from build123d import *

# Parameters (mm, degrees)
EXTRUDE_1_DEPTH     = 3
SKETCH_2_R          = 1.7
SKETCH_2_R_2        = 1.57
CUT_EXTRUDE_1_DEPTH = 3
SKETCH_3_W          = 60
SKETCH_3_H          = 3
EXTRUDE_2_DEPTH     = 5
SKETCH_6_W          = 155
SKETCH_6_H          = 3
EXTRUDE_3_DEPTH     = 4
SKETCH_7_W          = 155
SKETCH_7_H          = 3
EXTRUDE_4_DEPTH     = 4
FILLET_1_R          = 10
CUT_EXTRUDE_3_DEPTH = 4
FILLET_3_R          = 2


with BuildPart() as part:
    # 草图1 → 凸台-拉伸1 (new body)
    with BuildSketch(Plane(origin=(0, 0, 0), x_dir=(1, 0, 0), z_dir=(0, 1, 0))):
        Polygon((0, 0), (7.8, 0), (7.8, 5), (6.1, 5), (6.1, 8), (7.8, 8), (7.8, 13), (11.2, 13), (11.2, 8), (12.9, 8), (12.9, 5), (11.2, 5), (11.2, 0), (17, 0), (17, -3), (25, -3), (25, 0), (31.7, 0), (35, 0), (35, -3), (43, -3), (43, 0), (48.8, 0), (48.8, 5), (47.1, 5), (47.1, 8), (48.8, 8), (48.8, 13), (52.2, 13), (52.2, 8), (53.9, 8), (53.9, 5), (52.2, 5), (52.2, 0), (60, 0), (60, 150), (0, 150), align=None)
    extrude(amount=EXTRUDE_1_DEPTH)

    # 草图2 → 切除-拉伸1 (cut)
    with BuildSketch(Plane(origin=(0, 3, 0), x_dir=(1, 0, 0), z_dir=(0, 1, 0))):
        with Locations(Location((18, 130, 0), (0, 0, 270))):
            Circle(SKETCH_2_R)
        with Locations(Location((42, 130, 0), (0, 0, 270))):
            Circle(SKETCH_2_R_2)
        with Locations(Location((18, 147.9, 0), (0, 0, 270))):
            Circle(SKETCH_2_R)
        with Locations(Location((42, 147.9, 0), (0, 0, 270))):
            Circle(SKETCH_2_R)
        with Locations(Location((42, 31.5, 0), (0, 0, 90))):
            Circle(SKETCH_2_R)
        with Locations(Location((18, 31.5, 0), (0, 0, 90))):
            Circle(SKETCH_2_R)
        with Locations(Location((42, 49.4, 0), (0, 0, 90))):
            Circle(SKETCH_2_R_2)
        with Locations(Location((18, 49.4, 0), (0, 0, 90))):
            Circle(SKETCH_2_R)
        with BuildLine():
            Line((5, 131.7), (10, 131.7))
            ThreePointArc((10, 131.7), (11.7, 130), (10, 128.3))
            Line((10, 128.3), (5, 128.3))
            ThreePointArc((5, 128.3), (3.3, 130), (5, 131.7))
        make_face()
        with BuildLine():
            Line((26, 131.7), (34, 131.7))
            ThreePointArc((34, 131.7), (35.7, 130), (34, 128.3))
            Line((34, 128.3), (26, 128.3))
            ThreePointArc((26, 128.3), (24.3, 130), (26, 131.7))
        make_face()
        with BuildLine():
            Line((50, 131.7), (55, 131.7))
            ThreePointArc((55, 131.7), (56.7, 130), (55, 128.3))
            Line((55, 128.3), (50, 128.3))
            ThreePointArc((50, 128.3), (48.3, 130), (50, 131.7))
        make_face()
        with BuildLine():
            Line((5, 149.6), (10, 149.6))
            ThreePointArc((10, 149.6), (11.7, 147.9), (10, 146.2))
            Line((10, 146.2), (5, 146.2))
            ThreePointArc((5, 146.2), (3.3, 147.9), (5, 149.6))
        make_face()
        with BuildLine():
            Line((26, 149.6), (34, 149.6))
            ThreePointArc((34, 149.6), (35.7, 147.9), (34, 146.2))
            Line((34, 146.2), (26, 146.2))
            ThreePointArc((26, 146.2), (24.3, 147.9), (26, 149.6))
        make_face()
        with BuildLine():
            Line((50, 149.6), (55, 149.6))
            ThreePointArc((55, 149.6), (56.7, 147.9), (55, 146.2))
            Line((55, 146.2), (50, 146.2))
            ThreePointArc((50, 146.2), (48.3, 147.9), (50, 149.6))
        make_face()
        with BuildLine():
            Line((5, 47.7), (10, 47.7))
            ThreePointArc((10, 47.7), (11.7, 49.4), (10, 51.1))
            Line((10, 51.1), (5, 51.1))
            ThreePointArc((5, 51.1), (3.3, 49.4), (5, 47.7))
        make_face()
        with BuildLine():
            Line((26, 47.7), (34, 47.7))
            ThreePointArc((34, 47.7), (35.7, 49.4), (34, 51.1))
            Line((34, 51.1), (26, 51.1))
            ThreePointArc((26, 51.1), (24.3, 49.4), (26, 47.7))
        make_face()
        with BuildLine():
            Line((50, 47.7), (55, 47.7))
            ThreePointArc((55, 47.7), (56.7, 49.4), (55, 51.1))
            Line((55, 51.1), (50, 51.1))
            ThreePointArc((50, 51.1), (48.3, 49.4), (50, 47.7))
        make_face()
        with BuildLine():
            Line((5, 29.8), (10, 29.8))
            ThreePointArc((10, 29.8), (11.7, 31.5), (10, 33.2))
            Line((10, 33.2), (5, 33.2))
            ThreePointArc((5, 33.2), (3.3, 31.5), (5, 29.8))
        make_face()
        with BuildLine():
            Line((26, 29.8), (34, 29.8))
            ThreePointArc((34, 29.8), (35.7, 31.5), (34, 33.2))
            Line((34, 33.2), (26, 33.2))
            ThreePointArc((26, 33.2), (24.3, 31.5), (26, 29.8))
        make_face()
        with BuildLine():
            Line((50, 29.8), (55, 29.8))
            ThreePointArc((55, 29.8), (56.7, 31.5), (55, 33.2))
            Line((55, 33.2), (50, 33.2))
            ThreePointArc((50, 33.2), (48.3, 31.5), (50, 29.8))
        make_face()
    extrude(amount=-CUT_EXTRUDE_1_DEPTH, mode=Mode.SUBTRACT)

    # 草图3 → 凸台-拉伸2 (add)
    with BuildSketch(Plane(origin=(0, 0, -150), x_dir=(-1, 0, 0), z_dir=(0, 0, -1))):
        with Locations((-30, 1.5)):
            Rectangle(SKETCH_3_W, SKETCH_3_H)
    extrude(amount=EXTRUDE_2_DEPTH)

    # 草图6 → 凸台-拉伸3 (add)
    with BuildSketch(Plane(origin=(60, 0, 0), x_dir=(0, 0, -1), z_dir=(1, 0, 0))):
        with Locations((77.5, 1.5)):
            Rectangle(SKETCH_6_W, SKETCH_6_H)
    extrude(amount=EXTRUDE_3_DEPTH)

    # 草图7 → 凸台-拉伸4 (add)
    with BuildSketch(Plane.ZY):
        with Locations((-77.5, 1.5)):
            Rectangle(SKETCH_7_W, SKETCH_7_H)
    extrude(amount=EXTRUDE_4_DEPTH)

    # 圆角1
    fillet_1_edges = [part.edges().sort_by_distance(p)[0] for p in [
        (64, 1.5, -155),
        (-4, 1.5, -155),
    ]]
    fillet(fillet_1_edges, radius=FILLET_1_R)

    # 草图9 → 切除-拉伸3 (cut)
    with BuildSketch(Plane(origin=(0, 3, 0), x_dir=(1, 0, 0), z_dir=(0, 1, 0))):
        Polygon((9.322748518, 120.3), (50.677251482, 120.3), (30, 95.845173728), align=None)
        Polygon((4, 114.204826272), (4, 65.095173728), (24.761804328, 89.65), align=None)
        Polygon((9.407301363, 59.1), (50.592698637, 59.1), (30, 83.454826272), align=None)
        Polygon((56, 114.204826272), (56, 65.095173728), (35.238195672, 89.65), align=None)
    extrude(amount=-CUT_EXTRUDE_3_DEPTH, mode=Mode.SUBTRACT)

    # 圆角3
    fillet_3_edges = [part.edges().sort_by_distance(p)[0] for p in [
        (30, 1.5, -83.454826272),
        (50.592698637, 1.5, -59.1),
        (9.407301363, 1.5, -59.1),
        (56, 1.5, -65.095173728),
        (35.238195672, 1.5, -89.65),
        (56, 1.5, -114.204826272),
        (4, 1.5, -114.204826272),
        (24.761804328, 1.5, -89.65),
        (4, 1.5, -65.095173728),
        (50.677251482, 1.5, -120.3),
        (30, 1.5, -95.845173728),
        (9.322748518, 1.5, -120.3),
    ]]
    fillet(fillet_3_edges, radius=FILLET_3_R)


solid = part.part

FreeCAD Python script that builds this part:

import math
import FreeCAD as App
import Part
import Sketcher

V = App.Vector
Q = App.Units.Quantity


def edges_at(feature, points):
    """Names of the edges that pass closest to the given points."""
    edges = feature.Shape.Edges
    near = lambda p: min(range(len(edges)), key=lambda i: edges[i].distToShape(Part.Vertex(*p))[0])
    return sorted({f"Edge{near(p) + 1}" for p in points})

doc = App.newDocument("Part")
params = doc.addObject("Spreadsheet::Sheet", "Params")
for row, (alias, value) in enumerate([
    ("sketch1_width", "8 mm"),
    ("sketch1_width2", "10 mm"),
    ("sketch1_width3", "60 mm"),
    ("sketch1_height", "5 mm"),
    ("sketch1_height2", "3 mm"),
    ("pad1_length", "3 mm"),
    ("sketch2_diameter", "3.4 mm"),
    ("sketch2_diameter2", "3.14 mm"),
    ("sketch2_width", "5 mm"),
    ("sketch2_width2", "8 mm"),
    ("pocket1_length", "3 mm"),
    ("sketch3_width", "60 mm"),
    ("sketch3_height", "3 mm"),
    ("pad2_length", "5 mm"),
    ("sketch4_width", "3 mm"),
    ("sketch4_height", "155 mm"),
    ("pad3_length", "4 mm"),
    ("sketch5_width", "3 mm"),
    ("sketch5_height", "155 mm"),
    ("pad4_length", "4 mm"),
    ("fillet_radius", "10 mm"),
    ("pocket2_length", "4 mm"),
    ("fillet2_radius", "2 mm"),
], start=1):
    params.set(f"A{row}", alias)
    params.set(f"B{row}", "=" + value)
    params.setAlias(f"B{row}", alias)

body = doc.addObject("PartDesign::Body", "Body")

# Sketch on XZ plane
sketch1 = body.newObject("Sketcher::SketchObject", "Sketch")
sketch1.AttachmentSupport = (doc.getObject("XZ_Plane"), [""])
sketch1.MapMode = "FlatFace"
sketch1.addGeometry([
    Part.LineSegment(V(0, 0, 0), V(7.8, 0, 0)),  # 0
    Part.LineSegment(V(7.8, 0, 0), V(7.8, -5, 0)),  # 1
    Part.LineSegment(V(7.8, -5, 0), V(6.1, -5, 0)),  # 2
    Part.LineSegment(V(6.1, -5, 0), V(6.1, -8, 0)),  # 3
    Part.LineSegment(V(6.1, -8, 0), V(7.8, -8, 0)),  # 4
    Part.LineSegment(V(7.8, -8, 0), V(7.8, -13, 0)),  # 5
    Part.LineSegment(V(7.8, -13, 0), V(11.2, -13, 0)),  # 6
    Part.LineSegment(V(11.2, -13, 0), V(11.2, -8, 0)),  # 7
    Part.LineSegment(V(11.2, -8, 0), V(12.9, -8, 0)),  # 8
    Part.LineSegment(V(12.9, -8, 0), V(12.9, -5, 0)),  # 9
    Part.LineSegment(V(12.9, -5, 0), V(11.2, -5, 0)),  # 10
    Part.LineSegment(V(11.2, -5, 0), V(11.2, 0, 0)),  # 11
    Part.LineSegment(V(11.2, 0, 0), V(17, 0, 0)),  # 12
    Part.LineSegment(V(17, 0, 0), V(17, 3, 0)),  # 13
    Part.LineSegment(V(17, 3, 0), V(25, 3, 0)),  # 14
    Part.LineSegment(V(25, 3, 0), V(25, 0, 0)),  # 15
    Part.LineSegment(V(25, 0, 0), V(35, 0, 0)),  # 16
    Part.LineSegment(V(35, 0, 0), V(35, 3, 0)),  # 17
    Part.LineSegment(V(35, 3, 0), V(43, 3, 0)),  # 18
    Part.LineSegment(V(43, 3, 0), V(43, 0, 0)),  # 19
    Part.LineSegment(V(43, 0, 0), V(48.8, 0, 0)),  # 20
    Part.LineSegment(V(48.8, 0, 0), V(48.8, -5, 0)),  # 21
    Part.LineSegment(V(48.8, -5, 0), V(47.1, -5, 0)),  # 22
    Part.LineSegment(V(47.1, -5, 0), V(47.1, -8, 0)),  # 23
    Part.LineSegment(V(47.1, -8, 0), V(48.8, -8, 0)),  # 24
    Part.LineSegment(V(48.8, -8, 0), V(48.8, -13, 0)),  # 25
    Part.LineSegment(V(48.8, -13, 0), V(52.2, -13, 0)),  # 26
    Part.LineSegment(V(52.2, -13, 0), V(52.2, -8, 0)),  # 27
    Part.LineSegment(V(52.2, -8, 0), V(53.9, -8, 0)),  # 28
    Part.LineSegment(V(53.9, -8, 0), V(53.9, -5, 0)),  # 29
    Part.LineSegment(V(53.9, -5, 0), V(52.2, -5, 0)),  # 30
    Part.LineSegment(V(52.2, -5, 0), V(52.2, 0, 0)),  # 31
    Part.LineSegment(V(52.2, 0, 0), V(60, 0, 0)),  # 32
    Part.LineSegment(V(60, 0, 0), V(60, -150, 0)),  # 33
    Part.LineSegment(V(60, -150, 0), V(0, -150, 0)),  # 34
    Part.LineSegment(V(0, -150, 0), V(0, 0, 0)),  # 35
], False)
sketch1.addConstraint([
    Sketcher.Constraint("Coincident", 0, 2, 1, 1),
    Sketcher.Constraint("Coincident", 1, 2, 2, 1),
    Sketcher.Constraint("Coincident", 2, 2, 3, 1),
    Sketcher.Constraint("Coincident", 3, 2, 4, 1),
    Sketcher.Constraint("Coincident", 4, 2, 5, 1),
    Sketcher.Constraint("Coincident", 5, 2, 6, 1),
    Sketcher.Constraint("Coincident", 6, 2, 7, 1),
    Sketcher.Constraint("Coincident", 7, 2, 8, 1),
    Sketcher.Constraint("Coincident", 8, 2, 9, 1),
    Sketcher.Constraint("Coincident", 9, 2, 10, 1),
    Sketcher.Constraint("Coincident", 10, 2, 11, 1),
    Sketcher.Constraint("Coincident", 11, 2, 12, 1),
    Sketcher.Constraint("Coincident", 12, 2, 13, 1),
    Sketcher.Constraint("Coincident", 13, 2, 14, 1),
    Sketcher.Constraint("Coincident", 14, 2, 15, 1),
    Sketcher.Constraint("Coincident", 15, 2, 16, 1),
    Sketcher.Constraint("Coincident", 16, 2, 17, 1),
    Sketcher.Constraint("Coincident", 17, 2, 18, 1),
    Sketcher.Constraint("Coincident", 18, 2, 19, 1),
    Sketcher.Constraint("Coincident", 19, 2, 20, 1),
    Sketcher.Constraint("Coincident", 20, 2, 21, 1),
    Sketcher.Constraint("Coincident", 21, 2, 22, 1),
    Sketcher.Constraint("Coincident", 22, 2, 23, 1),
    Sketcher.Constraint("Coincident", 23, 2, 24, 1),
    Sketcher.Constraint("Coincident", 24, 2, 25, 1),
    Sketcher.Constraint("Coincident", 25, 2, 26, 1),
    Sketcher.Constraint("Coincident", 26, 2, 27, 1),
    Sketcher.Constraint("Coincident", 27, 2, 28, 1),
    Sketcher.Constraint("Coincident", 28, 2, 29, 1),
    Sketcher.Constraint("Coincident", 29, 2, 30, 1),
    Sketcher.Constraint("Coincident", 30, 2, 31, 1),
    Sketcher.Constraint("Coincident", 31, 2, 32, 1),
    Sketcher.Constraint("Coincident", 32, 2, 33, 1),
    Sketcher.Constraint("Coincident", 33, 2, 34, 1),
    Sketcher.Constraint("Coincident", 34, 2, 35, 1),
    Sketcher.Constraint("Coincident", 35, 2, 0, 1),
    Sketcher.Constraint("Horizontal", 0),
    Sketcher.Constraint("Vertical", 1),
    Sketcher.Constraint("Horizontal", 2),
    Sketcher.Constraint("Vertical", 3),
    Sketcher.Constraint("Horizontal", 4),
    Sketcher.Constraint("Vertical", 5),
    Sketcher.Constraint("Horizontal", 6),
    Sketcher.Constraint("Vertical", 7),
    Sketcher.Constraint("Horizontal", 8),
    Sketcher.Constraint("Vertical", 9),
    Sketcher.Constraint("Horizontal", 10),
    Sketcher.Constraint("Vertical", 11),
    Sketcher.Constraint("Horizontal", 12),
    Sketcher.Constraint("Vertical", 13),
    Sketcher.Constraint("Horizontal", 14),
    Sketcher.Constraint("Vertical", 15),
    Sketcher.Constraint("Horizontal", 16),
    Sketcher.Constraint("Vertical", 17),
    Sketcher.Constraint("Horizontal", 18),
    Sketcher.Constraint("Vertical", 19),
    Sketcher.Constraint("Horizontal", 20),
    Sketcher.Constraint("Vertical", 21),
    Sketcher.Constraint("Horizontal", 22),
    Sketcher.Constraint("Vertical", 23),
    Sketcher.Constraint("Horizontal", 24),
    Sketcher.Constraint("Vertical", 25),
    Sketcher.Constraint("Horizontal", 26),
    Sketcher.Constraint("Vertical", 27),
    Sketcher.Constraint("Horizontal", 28),
    Sketcher.Constraint("Vertical", 29),
    Sketcher.Constraint("Horizontal", 30),
    Sketcher.Constraint("Vertical", 31),
    Sketcher.Constraint("Horizontal", 32),
    Sketcher.Constraint("Vertical", 33),
    Sketcher.Constraint("Horizontal", 34),
    Sketcher.Constraint("Vertical", 35),
    Sketcher.Constraint("Coincident", 35, 2, -1, 1),
    Sketcher.Constraint("PointOnObject", 11, 2, -1),
    Sketcher.Constraint("PointOnObject", 15, 2, -1),
    Sketcher.Constraint("PointOnObject", 19, 2, -1),
    Sketcher.Constraint("PointOnObject", 31, 2, -1),
    Sketcher.Constraint("Horizontal", 4, 2, 7, 2),
    Sketcher.Constraint("Horizontal", 2, 2, 9, 2),
    Sketcher.Constraint("Horizontal", 14, 2, 17, 2),
    Sketcher.Constraint("Horizontal", 10, 2, 21, 2),
    Sketcher.Constraint("Horizontal", 8, 2, 23, 2),
    Sketcher.Constraint("Horizontal", 6, 2, 25, 2),
    Sketcher.Constraint("Horizontal", 24, 2, 27, 2),
    Sketcher.Constraint("Horizontal", 22, 2, 29, 2),
    Sketcher.Constraint("Vertical", 1, 2, 4, 2),
    Sketcher.Constraint("Vertical", 7, 2, 10, 2),
    Sketcher.Constraint("Vertical", 21, 2, 24, 2),
    Sketcher.Constraint("Vertical", 27, 2, 30, 2),
    Sketcher.Constraint("Equal", 4, 8),
    Sketcher.Constraint("Equal", 14, 18),
    Sketcher.Constraint("Equal", 12, 20),
    Sketcher.Constraint("Equal", 10, 22),
    Sketcher.Constraint("Equal", 6, 26),
    Sketcher.Constraint("Equal", 24, 28),
    Sketcher.Constraint("Equal", 0, 32),
    Sketcher.Constraint("Equal", 1, 5),
    Sketcher.Constraint("Equal", 9, 13),
    Sketcher.Constraint("DistanceX", 14, 1, 14, 2, Q("8 mm")),
    Sketcher.Constraint("DistanceX", 16, 1, 16, 2, Q("10 mm")),
    Sketcher.Constraint("DistanceX", 34, 2, 34, 1, Q("60 mm")),
    Sketcher.Constraint("DistanceY", 1, 2, 1, 1, Q("5 mm")),
    Sketcher.Constraint("DistanceY", 3, 2, 3, 1, Q("3 mm")),
    Sketcher.Constraint("DistanceY", 33, 2, 33, 1, Q("150 mm")),
    Sketcher.Constraint("DistanceX", 0, 1, 0, 2, Q("7.8 mm")),
    Sketcher.Constraint("DistanceX", 2, 2, 2, 1, Q("1.7 mm")),
    Sketcher.Constraint("DistanceX", 6, 1, 6, 2, Q("3.4 mm")),
])
sketch1.setExpression("Constraints[98]", "Params.sketch1_width")
sketch1.setExpression("Constraints[99]", "Params.sketch1_width2")
sketch1.setExpression("Constraints[100]", "Params.sketch1_width3")
sketch1.setExpression("Constraints[101]", "Params.sketch1_height")
sketch1.setExpression("Constraints[102]", "Params.sketch1_height2")
pad1 = body.newObject("PartDesign::Pad", "Pad")
pad1.Profile = sketch1
pad1.setExpression("Length", "Params.pad1_length")
pad1.Reversed = True

# Sketch on XZ plane
sketch2 = body.newObject("Sketcher::SketchObject", "Sketch001")
sketch2.AttachmentSupport = (doc.getObject("XZ_Plane"), [""])
sketch2.MapMode = "FlatFace"
sketch2.AttachmentOffset = App.Placement(V(0, 0, -3), App.Rotation())
sketch2.addGeometry([
    Part.Circle(V(18, -130, 0), V(0, 0, 1), 1.7),  # 0
    Part.Circle(V(42, -130, 0), V(0, 0, 1), 1.6),  # 1
    Part.Circle(V(18, -147.9, 0), V(0, 0, 1), 1.7),  # 2
    Part.Circle(V(42, -147.9, 0), V(0, 0, 1), 1.7),  # 3
    Part.Circle(V(42, -31.5, 0), V(0, 0, 1), 1.7),  # 4
    Part.Circle(V(18, -31.5, 0), V(0, 0, 1), 1.7),  # 5
    Part.Circle(V(42, -49.4, 0), V(0, 0, 1), 1.6),  # 6
    Part.Circle(V(18, -49.4, 0), V(0, 0, 1), 1.7),  # 7
    Part.LineSegment(V(10, -131.7, 0), V(5, -131.7, 0)),  # 8
    Part.ArcOfCircle(Part.Circle(V(5, -130, 0), V(0, 0, 1), 1.7), math.radians(90), math.radians(270)),  # 9
    Part.LineSegment(V(5, -128.3, 0), V(10, -128.3, 0)),  # 10
    Part.ArcOfCircle(Part.Circle(V(10, -130, 0), V(0, 0, 1), 1.7), math.radians(-90), math.radians(90)),  # 11
    Part.LineSegment(V(34, -131.7, 0), V(26, -131.7, 0)),  # 12
    Part.ArcOfCircle(Part.Circle(V(26, -130, 0), V(0, 0, 1), 1.7), math.radians(90), math.radians(270)),  # 13
    Part.LineSegment(V(26, -128.3, 0), V(34, -128.3, 0)),  # 14
    Part.ArcOfCircle(Part.Circle(V(34, -130, 0), V(0, 0, 1), 1.7), math.radians(-90), math.radians(90)),  # 15
    Part.LineSegment(V(55, -131.7, 0), V(50, -131.7, 0)),  # 16
    Part.ArcOfCircle(Part.Circle(V(50, -130, 0), V(0, 0, 1), 1.7), math.radians(90), math.radians(270)),  # 17
    Part.LineSegment(V(50, -128.3, 0), V(55, -128.3, 0)),  # 18
    Part.ArcOfCircle(Part.Circle(V(55, -130, 0), V(0, 0, 1), 1.7), math.radians(-90), math.radians(90)),  # 19
    Part.LineSegment(V(10, -149.6, 0), V(5, -149.6, 0)),  # 20
    Part.ArcOfCircle(Part.Circle(V(5, -147.9, 0), V(0, 0, 1), 1.7), math.radians(90), math.radians(270)),  # 21
    Part.LineSegment(V(5, -146.2, 0), V(10, -146.2, 0)),  # 22
    Part.ArcOfCircle(Part.Circle(V(10, -147.9, 0), V(0, 0, 1), 1.7), math.radians(-90), math.radians(90)),  # 23
    Part.LineSegment(V(34, -149.6, 0), V(26, -149.6, 0)),  # 24
    Part.ArcOfCircle(Part.Circle(V(26, -147.9, 0), V(0, 0, 1), 1.7), math.radians(90), math.radians(270)),  # 25
    Part.LineSegment(V(26, -146.2, 0), V(34, -146.2, 0)),  # 26
    Part.ArcOfCircle(Part.Circle(V(34, -147.9, 0), V(0, 0, 1), 1.7), math.radians(-90), math.radians(90)),  # 27
    Part.LineSegment(V(55, -149.6, 0), V(50, -149.6, 0)),  # 28
    Part.ArcOfCircle(Part.Circle(V(50, -147.9, 0), V(0, 0, 1), 1.7), math.radians(90), math.radians(270)),  # 29
    Part.LineSegment(V(50, -146.2, 0), V(55, -146.2, 0)),  # 30
    Part.ArcOfCircle(Part.Circle(V(55, -147.9, 0), V(0, 0, 1), 1.7), math.radians(-90), math.radians(90)),  # 31
    Part.LineSegment(V(5, -47.7, 0), V(10, -47.7, 0)),  # 32
    Part.ArcOfCircle(Part.Circle(V(10, -49.4, 0), V(0, 0, 1), 1.7), math.radians(-90), math.radians(90)),  # 33
    Part.LineSegment(V(10, -51.1, 0), V(5, -51.1, 0)),  # 34
    Part.ArcOfCircle(Part.Circle(V(5, -49.4, 0), V(0, 0, 1), 1.7), math.radians(90), math.radians(270)),  # 35
    Part.LineSegment(V(26, -47.7, 0), V(34, -47.7, 0)),  # 36
    Part.ArcOfCircle(Part.Circle(V(34, -49.4, 0), V(0, 0, 1), 1.7), math.radians(-90), math.radians(90)),  # 37
    Part.LineSegment(V(34, -51.1, 0), V(26, -51.1, 0)),  # 38
    Part.ArcOfCircle(Part.Circle(V(26, -49.4, 0), V(0, 0, 1), 1.7), math.radians(90), math.radians(270)),  # 39
    Part.LineSegment(V(50, -47.7, 0), V(55, -47.7, 0)),  # 40
    Part.ArcOfCircle(Part.Circle(V(55, -49.4, 0), V(0, 0, 1), 1.7), math.radians(-90), math.radians(90)),  # 41
    Part.LineSegment(V(55, -51.1, 0), V(50, -51.1, 0)),  # 42
    Part.ArcOfCircle(Part.Circle(V(50, -49.4, 0), V(0, 0, 1), 1.7), math.radians(90), math.radians(270)),  # 43
    Part.LineSegment(V(5, -29.8, 0), V(10, -29.8, 0)),  # 44
    Part.ArcOfCircle(Part.Circle(V(10, -31.5, 0), V(0, 0, 1), 1.7), math.radians(-90), math.radians(90)),  # 45
    Part.LineSegment(V(10, -33.2, 0), V(5, -33.2, 0)),  # 46
    Part.ArcOfCircle(Part.Circle(V(5, -31.5, 0), V(0, 0, 1), 1.7), math.radians(90), math.radians(270)),  # 47
    Part.LineSegment(V(26, -29.8, 0), V(34, -29.8, 0)),  # 48
    Part.ArcOfCircle(Part.Circle(V(34, -31.5, 0), V(0, 0, 1), 1.7), math.radians(-90), math.radians(90)),  # 49
    Part.LineSegment(V(34, -33.2, 0), V(26, -33.2, 0)),  # 50
    Part.ArcOfCircle(Part.Circle(V(26, -31.5, 0), V(0, 0, 1), 1.7), math.radians(90), math.radians(270)),  # 51
    Part.LineSegment(V(50, -29.8, 0), V(55, -29.8, 0)),  # 52
    Part.ArcOfCircle(Part.Circle(V(55, -31.5, 0), V(0, 0, 1), 1.7), math.radians(-90), math.radians(90)),  # 53
    Part.LineSegment(V(55, -33.2, 0), V(50, -33.2, 0)),  # 54
    Part.ArcOfCircle(Part.Circle(V(50, -31.5, 0), V(0, 0, 1), 1.7), math.radians(90), math.radians(270)),  # 55
], False)
sketch2.addConstraint([
    Sketcher.Constraint("Tangent", 8, 2, 9, 2),
    Sketcher.Constraint("Tangent", 9, 1, 10, 1),
    Sketcher.Constraint("Tangent", 10, 2, 11, 2),
    Sketcher.Constraint("Tangent", 11, 1, 8, 1),
    Sketcher.Constraint("Tangent", 12, 2, 13, 2),
    Sketcher.Constraint("Tangent", 13, 1, 14, 1),
    Sketcher.Constraint("Tangent", 14, 2, 15, 2),
    Sketcher.Constraint("Tangent", 15, 1, 12, 1),
    Sketcher.Constraint("Tangent", 16, 2, 17, 2),
    Sketcher.Constraint("Tangent", 17, 1, 18, 1),
    Sketcher.Constraint("Tangent", 18, 2, 19, 2),
    Sketcher.Constraint("Tangent", 19, 1, 16, 1),
    Sketcher.Constraint("Tangent", 20, 2, 21, 2),
    Sketcher.Constraint("Tangent", 21, 1, 22, 1),
    Sketcher.Constraint("Tangent", 22, 2, 23, 2),
    Sketcher.Constraint("Tangent", 23, 1, 20, 1),
    Sketcher.Constraint("Tangent", 24, 2, 25, 2),
    Sketcher.Constraint("Tangent", 25, 1, 26, 1),
    Sketcher.Constraint("Tangent", 26, 2, 27, 2),
    Sketcher.Constraint("Tangent", 27, 1, 24, 1),
    Sketcher.Constraint("Tangent", 28, 2, 29, 2),
    Sketcher.Constraint("Tangent", 29, 1, 30, 1),
    Sketcher.Constraint("Tangent", 30, 2, 31, 2),
    Sketcher.Constraint("Tangent", 31, 1, 28, 1),
    Sketcher.Constraint("Tangent", 32, 2, 33, 2),
    Sketcher.Constraint("Tangent", 33, 1, 34, 1),
    Sketcher.Constraint("Tangent", 34, 2, 35, 2),
    Sketcher.Constraint("Tangent", 35, 1, 32, 1),
    Sketcher.Constraint("Tangent", 36, 2, 37, 2),
    Sketcher.Constraint("Tangent", 37, 1, 38, 1),
    Sketcher.Constraint("Tangent", 38, 2, 39, 2),
    Sketcher.Constraint("Tangent", 39, 1, 36, 1),
    Sketcher.Constraint("Tangent", 40, 2, 41, 2),
    Sketcher.Constraint("Tangent", 41, 1, 42, 1),
    Sketcher.Constraint("Tangent", 42, 2, 43, 2),
    Sketcher.Constraint("Tangent", 43, 1, 40, 1),
    Sketcher.Constraint("Tangent", 44, 2, 45, 2),
    Sketcher.Constraint("Tangent", 45, 1, 46, 1),
    Sketcher.Constraint("Tangent", 46, 2, 47, 2),
    Sketcher.Constraint("Tangent", 47, 1, 44, 1),
    Sketcher.Constraint("Tangent", 48, 2, 49, 2),
    Sketcher.Constraint("Tangent", 49, 1, 50, 1),
    Sketcher.Constraint("Tangent", 50, 2, 51, 2),
    Sketcher.Constraint("Tangent", 51, 1, 48, 1),
    Sketcher.Constraint("Tangent", 52, 2, 53, 2),
    Sketcher.Constraint("Tangent", 53, 1, 54, 1),
    Sketcher.Constraint("Tangent", 54, 2, 55, 2),
    Sketcher.Constraint("Tangent", 55, 1, 52, 1),
    Sketcher.Constraint("Horizontal", 8),
    Sketcher.Constraint("Horizontal", 10),
    Sketcher.Constraint("Horizontal", 12),
    Sketcher.Constraint("Horizontal", 14),
    Sketcher.Constraint("Horizontal", 16),
    Sketcher.Constraint("Horizontal", 18),
    Sketcher.Constraint("Horizontal", 20),
    Sketcher.Constraint("Horizontal", 22),
    Sketcher.Constraint("Horizontal", 24),
    Sketcher.Constraint("Horizontal", 26),
    Sketcher.Constraint("Horizontal", 28),
    Sketcher.Constraint("Horizontal", 30),
    Sketcher.Constraint("Horizontal", 32),
    Sketcher.Constraint("Horizontal", 34),
    Sketcher.Constraint("Horizontal", 36),
    Sketcher.Constraint("Horizontal", 38),
    Sketcher.Constraint("Horizontal", 40),
    Sketcher.Constraint("Horizontal", 42),
    Sketcher.Constraint("Horizontal", 44),
    Sketcher.Constraint("Horizontal", 46),
    Sketcher.Constraint("Horizontal", 48),
    Sketcher.Constraint("Horizontal", 50),
    Sketcher.Constraint("Horizontal", 52),
    Sketcher.Constraint("Horizontal", 54),
    Sketcher.Constraint("Equal", 0, 2),
    Sketcher.Constraint("Equal", 2, 3),
    Sketcher.Constraint("Equal", 3, 4),
    Sketcher.Constraint("Equal", 4, 5),
    Sketcher.Constraint("Equal", 1, 6),
    Sketcher.Constraint("Equal", 5, 7),
    Sketcher.Constraint("Equal", 7, 9),
    Sketcher.Constraint("Equal", 11, 13),
    Sketcher.Constraint("Equal", 15, 17),
    Sketcher.Constraint("Equal", 19, 21),
    Sketcher.Constraint("Equal", 23, 25),
    Sketcher.Constraint("Equal", 27, 29),
    Sketcher.Constraint("Equal", 31, 33),
    Sketcher.Constraint("Equal", 35, 37),
    Sketcher.Constraint("Equal", 39, 41),
    Sketcher.Constraint("Equal", 43, 45),
    Sketcher.Constraint("Equal", 47, 49),
    Sketcher.Constraint("Equal", 51, 53),
    Sketcher.Constraint("Horizontal", 0, 3, 1, 3),
    Sketcher.Constraint("Horizontal", 2, 3, 3, 3),
    Sketcher.Constraint("Horizontal", 4, 3, 5, 3),
    Sketcher.Constraint("Horizontal", 6, 3, 7, 3),
    Sketcher.Constraint("Horizontal", 1, 3, 9, 3),
    Sketcher.Constraint("Horizontal", 11, 3, 13, 3),
    Sketcher.Constraint("Horizontal", 15, 3, 17, 3),
    Sketcher.Constraint("Horizontal", 3, 3, 21, 3),
    Sketcher.Constraint("Horizontal", 23, 3, 25, 3),
    Sketcher.Constraint("Horizontal", 27, 3, 29, 3),
    Sketcher.Constraint("Horizontal", 7, 3, 33, 3),
    Sketcher.Constraint("Horizontal", 35, 3, 37, 3),
    Sketcher.Constraint("Horizontal", 39, 3, 41, 3),
    Sketcher.Constraint("Horizontal", 5, 3, 45, 3),
    Sketcher.Constraint("Horizontal", 47, 3, 49, 3),
    Sketcher.Constraint("Horizontal", 51, 3, 53, 3),
    Sketcher.Constraint("Vertical", 0, 3, 2, 3),
    Sketcher.Constraint("Vertical", 1, 3, 3, 3),
    Sketcher.Constraint("Vertical", 3, 3, 4, 3),
    Sketcher.Constraint("Vertical", 2, 3, 5, 3),
    Sketcher.Constraint("Vertical", 4, 3, 6, 3),
    Sketcher.Constraint("Vertical", 5, 3, 7, 3),
    Sketcher.Constraint("Vertical", 9, 3, 21, 3),
    Sketcher.Constraint("Vertical", 11, 3, 23, 3),
    Sketcher.Constraint("Vertical", 13, 3, 25, 3),
    Sketcher.Constraint("Vertical", 15, 3, 27, 3),
    Sketcher.Constraint("Vertical", 17, 3, 29, 3),
    Sketcher.Constraint("Vertical", 19, 3, 31, 3),
    Sketcher.Constraint("Vertical", 23, 3, 33, 3),
    Sketcher.Constraint("Vertical", 21, 3, 35, 3),
    Sketcher.Constraint("Vertical", 27, 3, 37, 3),
    Sketcher.Constraint("Vertical", 25, 3, 39, 3),
    Sketcher.Constraint("Vertical", 31, 3, 41, 3),
    Sketcher.Constraint("Vertical", 29, 3, 43, 3),
    Sketcher.Constraint("Vertical", 33, 3, 45, 3),
    Sketcher.Constraint("Vertical", 35, 3, 47, 3),
    Sketcher.Constraint("Vertical", 37, 3, 49, 3),
    Sketcher.Constraint("Vertical", 39, 3, 51, 3),
    Sketcher.Constraint("Vertical", 41, 3, 53, 3),
    Sketcher.Constraint("Vertical", 43, 3, 55, 3),
    Sketcher.Constraint("Equal", 10, 16),
    Sketcher.Constraint("Diameter", 0, Q("3.4 mm")),
    Sketcher.Constraint("Diameter", 1, Q("3.14 mm")),
    Sketcher.Constraint("DistanceX", 8, 2, 8, 1, Q("5 mm")),
    Sketcher.Constraint("DistanceX", 12, 2, 12, 1, Q("8 mm")),
    Sketcher.Constraint("DistanceX", -1, 1, 0, 3, Q("18 mm")),
    Sketcher.Constraint("DistanceY", 0, 3, -1, 1, Q("130 mm")),
    Sketcher.Constraint("DistanceX", -1, 1, 1, 3, Q("42 mm")),
    Sketcher.Constraint("DistanceX", -1, 1, 9, 3, Q("5 mm")),
    Sketcher.Constraint("DistanceX", -1, 1, 13, 3, Q("26 mm")),
    Sketcher.Constraint("DistanceX", -1, 1, 17, 3, Q("50 mm")),
    Sketcher.Constraint("DistanceY", 2, 3, -1, 1, Q("147.9 mm")),
    Sketcher.Constraint("DistanceY", 4, 3, -1, 1, Q("31.5 mm")),
    Sketcher.Constraint("DistanceY", 6, 3, -1, 1, Q("49.4 mm")),
])
sketch2.setExpression("Constraints[131]", "Params.sketch2_diameter")
sketch2.setExpression("Constraints[132]", "Params.sketch2_diameter2")
sketch2.setExpression("Constraints[133]", "Params.sketch2_width")
sketch2.setExpression("Constraints[134]", "Params.sketch2_width2")
pocket1 = body.newObject("PartDesign::Pocket", "Pocket")
pocket1.Profile = sketch2
pocket1.setExpression("Length", "Params.pocket1_length")
pocket1.Reversed = True

# Sketch on XY plane
sketch3 = body.newObject("Sketcher::SketchObject", "Sketch002")
sketch3.AttachmentSupport = (doc.getObject("XY_Plane"), [""])
sketch3.MapMode = "FlatFace"
sketch3.AttachmentOffset = App.Placement(V(0, 0, -150), App.Rotation())
sketch3.addGeometry([
    Part.LineSegment(V(60, 3, 0), V(60, 0, 0)),
    Part.LineSegment(V(60, 0, 0), V(0, 0, 0)),
    Part.LineSegment(V(0, 0, 0), V(0, 3, 0)),
    Part.LineSegment(V(0, 3, 0), V(60, 3, 0)),
], False)
sketch3.addConstraint([
    Sketcher.Constraint("Coincident", 0, 2, 1, 1),
    Sketcher.Constraint("Coincident", 1, 2, 2, 1),
    Sketcher.Constraint("Coincident", 2, 2, 3, 1),
    Sketcher.Constraint("Coincident", 3, 2, 0, 1),
    Sketcher.Constraint("Vertical", 0),
    Sketcher.Constraint("Horizontal", 1),
    Sketcher.Constraint("Vertical", 2),
    Sketcher.Constraint("Horizontal", 3),
    Sketcher.Constraint("Coincident", 1, 2, -1, 1),
    Sketcher.Constraint("DistanceX", 1, 2, 1, 1, Q("60 mm")),
    Sketcher.Constraint("DistanceY", 0, 2, 0, 1, Q("3 mm")),
])
sketch3.setExpression("Constraints[9]", "Params.sketch3_width")
sketch3.setExpression("Constraints[10]", "Params.sketch3_height")
pad2 = body.newObject("PartDesign::Pad", "Pad001")
pad2.Profile = sketch3
pad2.setExpression("Length", "Params.pad2_length")
pad2.Reversed = True

# Sketch on YZ plane
sketch4 = body.newObject("Sketcher::SketchObject", "Sketch003")
sketch4.AttachmentSupport = (doc.getObject("YZ_Plane"), [""])
sketch4.MapMode = "FlatFace"
sketch4.AttachmentOffset = App.Placement(V(0, 0, 60), App.Rotation())
sketch4.addGeometry([
    Part.LineSegment(V(3, 0, 0), V(0, 0, 0)),
    Part.LineSegment(V(0, 0, 0), V(0, -155, 0)),
    Part.LineSegment(V(0, -155, 0), V(3, -155, 0)),
    Part.LineSegment(V(3, -155, 0), V(3, 0, 0)),
], False)
sketch4.addConstraint([
    Sketcher.Constraint("Coincident", 0, 2, 1, 1),
    Sketcher.Constraint("Coincident", 1, 2, 2, 1),
    Sketcher.Constraint("Coincident", 2, 2, 3, 1),
    Sketcher.Constraint("Coincident", 3, 2, 0, 1),
    Sketcher.Constraint("Horizontal", 0),
    Sketcher.Constraint("Vertical", 1),
    Sketcher.Constraint("Horizontal", 2),
    Sketcher.Constraint("Vertical", 3),
    Sketcher.Constraint("Coincident", 0, 2, -1, 1),
    Sketcher.Constraint("DistanceX", 0, 2, 0, 1, Q("3 mm")),
    Sketcher.Constraint("DistanceY", 1, 2, 1, 1, Q("155 mm")),
])
sketch4.setExpression("Constraints[9]", "Params.sketch4_width")
sketch4.setExpression("Constraints[10]", "Params.sketch4_height")
pad3 = body.newObject("PartDesign::Pad", "Pad002")
pad3.Profile = sketch4
pad3.setExpression("Length", "Params.pad3_length")

# Sketch on YZ plane
sketch5 = body.newObject("Sketcher::SketchObject", "Sketch004")
sketch5.AttachmentSupport = (doc.getObject("YZ_Plane"), [""])
sketch5.MapMode = "FlatFace"
sketch5.addGeometry([
    Part.LineSegment(V(3, -155, 0), V(0, -155, 0)),
    Part.LineSegment(V(0, -155, 0), V(0, 0, 0)),
    Part.LineSegment(V(0, 0, 0), V(3, 0, 0)),
    Part.LineSegment(V(3, 0, 0), V(3, -155, 0)),
], False)
sketch5.addConstraint([
    Sketcher.Constraint("Coincident", 0, 2, 1, 1),
    Sketcher.Constraint("Coincident", 1, 2, 2, 1),
    Sketcher.Constraint("Coincident", 2, 2, 3, 1),
    Sketcher.Constraint("Coincident", 3, 2, 0, 1),
    Sketcher.Constraint("Horizontal", 0),
    Sketcher.Constraint("Vertical", 1),
    Sketcher.Constraint("Horizontal", 2),
    Sketcher.Constraint("Vertical", 3),
    Sketcher.Constraint("Coincident", 1, 2, -1, 1),
    Sketcher.Constraint("DistanceX", 0, 2, 0, 1, Q("3 mm")),
    Sketcher.Constraint("DistanceY", 1, 1, 1, 2, Q("155 mm")),
])
sketch5.setExpression("Constraints[9]", "Params.sketch5_width")
sketch5.setExpression("Constraints[10]", "Params.sketch5_height")
pad4 = body.newObject("PartDesign::Pad", "Pad003")
pad4.Profile = sketch5
pad4.setExpression("Length", "Params.pad4_length")
pad4.Reversed = True
doc.recompute()

fillet = body.newObject("PartDesign::Fillet", "Fillet")
fillet.Base = (pad4, edges_at(pad4, [(64, 1.5, -155), (-4, 1.5, -155)]))
fillet.setExpression("Radius", "Params.fillet_radius")

# Sketch on XZ plane
sketch6 = body.newObject("Sketcher::SketchObject", "Sketch005")
sketch6.AttachmentSupport = (doc.getObject("XZ_Plane"), [""])
sketch6.MapMode = "FlatFace"
sketch6.AttachmentOffset = App.Placement(V(0, 0, -3), App.Rotation())
sketch6.addGeometry([
    Part.LineSegment(V(51, -120, 0), V(9, -120, 0)),  # 0
    Part.LineSegment(V(9, -120, 0), V(30, -96, 0)),  # 1
    Part.LineSegment(V(30, -96, 0), V(51, -120, 0)),  # 2
    Part.LineSegment(V(4, -114, 0), V(4, -65, 0)),  # 3
    Part.LineSegment(V(4, -65, 0), V(25, -90, 0)),  # 4
    Part.LineSegment(V(25, -90, 0), V(4, -114, 0)),  # 5
    Part.LineSegment(V(9, -59, 0), V(51, -59, 0)),  # 6
    Part.LineSegment(V(51, -59, 0), V(30, -83, 0)),  # 7
    Part.LineSegment(V(30, -83, 0), V(9, -59, 0)),  # 8
    Part.LineSegment(V(56, -65, 0), V(56, -114, 0)),  # 9
    Part.LineSegment(V(56, -114, 0), V(35, -90, 0)),  # 10
    Part.LineSegment(V(35, -90, 0), V(56, -65, 0)),  # 11
], False)
sketch6.addConstraint([
    Sketcher.Constraint("Coincident", 0, 2, 1, 1),
    Sketcher.Constraint("Coincident", 1, 2, 2, 1),
    Sketcher.Constraint("Coincident", 2, 2, 0, 1),
    Sketcher.Constraint("Coincident", 3, 2, 4, 1),
    Sketcher.Constraint("Coincident", 4, 2, 5, 1),
    Sketcher.Constraint("Coincident", 5, 2, 3, 1),
    Sketcher.Constraint("Coincident", 6, 2, 7, 1),
    Sketcher.Constraint("Coincident", 7, 2, 8, 1),
    Sketcher.Constraint("Coincident", 8, 2, 6, 1),
    Sketcher.Constraint("Coincident", 9, 2, 10, 1),
    Sketcher.Constraint("Coincident", 10, 2, 11, 1),
    Sketcher.Constraint("Coincident", 11, 2, 9, 1),
    Sketcher.Constraint("Horizontal", 0),
    Sketcher.Constraint("Vertical", 3),
    Sketcher.Constraint("Horizontal", 6),
    Sketcher.Constraint("Vertical", 9),
    Sketcher.Constraint("Parallel", 2, 4),
    Sketcher.Constraint("Parallel", 1, 5),
    Sketcher.Constraint("Parallel", 5, 7),
    Sketcher.Constraint("Parallel", 4, 8),
    Sketcher.Constraint("Parallel", 8, 10),
    Sketcher.Constraint("Parallel", 7, 11),
    Sketcher.Constraint("Horizontal", 5, 2, 9, 2),
    Sketcher.Constraint("Horizontal", 4, 2, 10, 2),
    Sketcher.Constraint("Horizontal", 3, 2, 11, 2),
    Sketcher.Constraint("Vertical", 1, 2, 7, 2),
    Sketcher.Constraint("DistanceX", -1, 1, 1, 2, Q("30 mm")),
    Sketcher.Constraint("DistanceX", -1, 1, 3, 2, Q("4 mm")),
    Sketcher.Constraint("DistanceX", -1, 1, 9, 2, Q("56 mm")),
    Sketcher.Constraint("DistanceY", 0, 2, -1, 1, Q("120.3 mm")),
    Sketcher.Constraint("DistanceY", 6, 2, -1, 1, Q("59.1 mm")),
    Sketcher.Constraint("DistanceY", 4, 2, -1, 1, Q("89.65 mm")),
    Sketcher.Constraint("DistanceY", 1, 2, 3, 2, Q("30.75 mm")),
    Sketcher.Constraint("DistanceY", 5, 2, 7, 2, Q("30.75 mm")),
    Sketcher.Constraint("DistanceX", -1, 1, 6, 2, Q("50.592699 mm")),
    Sketcher.Constraint("Distance", 1, Q("32.024791 mm")),
])
pocket2 = body.newObject("PartDesign::Pocket", "Pocket001")
pocket2.Profile = sketch6
pocket2.setExpression("Length", "Params.pocket2_length")
pocket2.Reversed = True
doc.recompute()

fillet2 = body.newObject("PartDesign::Fillet", "Fillet001")
fillet2.Base = (pocket2, edges_at(pocket2, [
    (30, 1.5, -83.455),
    (50.593, 1.5, -59.1),
    (9.407, 1.5, -59.1),
    (56, 1.5, -65.095),
    (35.238, 1.5, -89.65),
    (56, 1.5, -114.205),
    (4, 1.5, -114.205),
    (24.762, 1.5, -89.65),
    (4, 1.5, -65.095),
    (50.677, 1.5, -120.3),
    (30, 1.5, -95.845),
    (9.323, 1.5, -120.3),
]))
fillet2.setExpression("Radius", "Params.fillet2_radius")

doc.recompute()
